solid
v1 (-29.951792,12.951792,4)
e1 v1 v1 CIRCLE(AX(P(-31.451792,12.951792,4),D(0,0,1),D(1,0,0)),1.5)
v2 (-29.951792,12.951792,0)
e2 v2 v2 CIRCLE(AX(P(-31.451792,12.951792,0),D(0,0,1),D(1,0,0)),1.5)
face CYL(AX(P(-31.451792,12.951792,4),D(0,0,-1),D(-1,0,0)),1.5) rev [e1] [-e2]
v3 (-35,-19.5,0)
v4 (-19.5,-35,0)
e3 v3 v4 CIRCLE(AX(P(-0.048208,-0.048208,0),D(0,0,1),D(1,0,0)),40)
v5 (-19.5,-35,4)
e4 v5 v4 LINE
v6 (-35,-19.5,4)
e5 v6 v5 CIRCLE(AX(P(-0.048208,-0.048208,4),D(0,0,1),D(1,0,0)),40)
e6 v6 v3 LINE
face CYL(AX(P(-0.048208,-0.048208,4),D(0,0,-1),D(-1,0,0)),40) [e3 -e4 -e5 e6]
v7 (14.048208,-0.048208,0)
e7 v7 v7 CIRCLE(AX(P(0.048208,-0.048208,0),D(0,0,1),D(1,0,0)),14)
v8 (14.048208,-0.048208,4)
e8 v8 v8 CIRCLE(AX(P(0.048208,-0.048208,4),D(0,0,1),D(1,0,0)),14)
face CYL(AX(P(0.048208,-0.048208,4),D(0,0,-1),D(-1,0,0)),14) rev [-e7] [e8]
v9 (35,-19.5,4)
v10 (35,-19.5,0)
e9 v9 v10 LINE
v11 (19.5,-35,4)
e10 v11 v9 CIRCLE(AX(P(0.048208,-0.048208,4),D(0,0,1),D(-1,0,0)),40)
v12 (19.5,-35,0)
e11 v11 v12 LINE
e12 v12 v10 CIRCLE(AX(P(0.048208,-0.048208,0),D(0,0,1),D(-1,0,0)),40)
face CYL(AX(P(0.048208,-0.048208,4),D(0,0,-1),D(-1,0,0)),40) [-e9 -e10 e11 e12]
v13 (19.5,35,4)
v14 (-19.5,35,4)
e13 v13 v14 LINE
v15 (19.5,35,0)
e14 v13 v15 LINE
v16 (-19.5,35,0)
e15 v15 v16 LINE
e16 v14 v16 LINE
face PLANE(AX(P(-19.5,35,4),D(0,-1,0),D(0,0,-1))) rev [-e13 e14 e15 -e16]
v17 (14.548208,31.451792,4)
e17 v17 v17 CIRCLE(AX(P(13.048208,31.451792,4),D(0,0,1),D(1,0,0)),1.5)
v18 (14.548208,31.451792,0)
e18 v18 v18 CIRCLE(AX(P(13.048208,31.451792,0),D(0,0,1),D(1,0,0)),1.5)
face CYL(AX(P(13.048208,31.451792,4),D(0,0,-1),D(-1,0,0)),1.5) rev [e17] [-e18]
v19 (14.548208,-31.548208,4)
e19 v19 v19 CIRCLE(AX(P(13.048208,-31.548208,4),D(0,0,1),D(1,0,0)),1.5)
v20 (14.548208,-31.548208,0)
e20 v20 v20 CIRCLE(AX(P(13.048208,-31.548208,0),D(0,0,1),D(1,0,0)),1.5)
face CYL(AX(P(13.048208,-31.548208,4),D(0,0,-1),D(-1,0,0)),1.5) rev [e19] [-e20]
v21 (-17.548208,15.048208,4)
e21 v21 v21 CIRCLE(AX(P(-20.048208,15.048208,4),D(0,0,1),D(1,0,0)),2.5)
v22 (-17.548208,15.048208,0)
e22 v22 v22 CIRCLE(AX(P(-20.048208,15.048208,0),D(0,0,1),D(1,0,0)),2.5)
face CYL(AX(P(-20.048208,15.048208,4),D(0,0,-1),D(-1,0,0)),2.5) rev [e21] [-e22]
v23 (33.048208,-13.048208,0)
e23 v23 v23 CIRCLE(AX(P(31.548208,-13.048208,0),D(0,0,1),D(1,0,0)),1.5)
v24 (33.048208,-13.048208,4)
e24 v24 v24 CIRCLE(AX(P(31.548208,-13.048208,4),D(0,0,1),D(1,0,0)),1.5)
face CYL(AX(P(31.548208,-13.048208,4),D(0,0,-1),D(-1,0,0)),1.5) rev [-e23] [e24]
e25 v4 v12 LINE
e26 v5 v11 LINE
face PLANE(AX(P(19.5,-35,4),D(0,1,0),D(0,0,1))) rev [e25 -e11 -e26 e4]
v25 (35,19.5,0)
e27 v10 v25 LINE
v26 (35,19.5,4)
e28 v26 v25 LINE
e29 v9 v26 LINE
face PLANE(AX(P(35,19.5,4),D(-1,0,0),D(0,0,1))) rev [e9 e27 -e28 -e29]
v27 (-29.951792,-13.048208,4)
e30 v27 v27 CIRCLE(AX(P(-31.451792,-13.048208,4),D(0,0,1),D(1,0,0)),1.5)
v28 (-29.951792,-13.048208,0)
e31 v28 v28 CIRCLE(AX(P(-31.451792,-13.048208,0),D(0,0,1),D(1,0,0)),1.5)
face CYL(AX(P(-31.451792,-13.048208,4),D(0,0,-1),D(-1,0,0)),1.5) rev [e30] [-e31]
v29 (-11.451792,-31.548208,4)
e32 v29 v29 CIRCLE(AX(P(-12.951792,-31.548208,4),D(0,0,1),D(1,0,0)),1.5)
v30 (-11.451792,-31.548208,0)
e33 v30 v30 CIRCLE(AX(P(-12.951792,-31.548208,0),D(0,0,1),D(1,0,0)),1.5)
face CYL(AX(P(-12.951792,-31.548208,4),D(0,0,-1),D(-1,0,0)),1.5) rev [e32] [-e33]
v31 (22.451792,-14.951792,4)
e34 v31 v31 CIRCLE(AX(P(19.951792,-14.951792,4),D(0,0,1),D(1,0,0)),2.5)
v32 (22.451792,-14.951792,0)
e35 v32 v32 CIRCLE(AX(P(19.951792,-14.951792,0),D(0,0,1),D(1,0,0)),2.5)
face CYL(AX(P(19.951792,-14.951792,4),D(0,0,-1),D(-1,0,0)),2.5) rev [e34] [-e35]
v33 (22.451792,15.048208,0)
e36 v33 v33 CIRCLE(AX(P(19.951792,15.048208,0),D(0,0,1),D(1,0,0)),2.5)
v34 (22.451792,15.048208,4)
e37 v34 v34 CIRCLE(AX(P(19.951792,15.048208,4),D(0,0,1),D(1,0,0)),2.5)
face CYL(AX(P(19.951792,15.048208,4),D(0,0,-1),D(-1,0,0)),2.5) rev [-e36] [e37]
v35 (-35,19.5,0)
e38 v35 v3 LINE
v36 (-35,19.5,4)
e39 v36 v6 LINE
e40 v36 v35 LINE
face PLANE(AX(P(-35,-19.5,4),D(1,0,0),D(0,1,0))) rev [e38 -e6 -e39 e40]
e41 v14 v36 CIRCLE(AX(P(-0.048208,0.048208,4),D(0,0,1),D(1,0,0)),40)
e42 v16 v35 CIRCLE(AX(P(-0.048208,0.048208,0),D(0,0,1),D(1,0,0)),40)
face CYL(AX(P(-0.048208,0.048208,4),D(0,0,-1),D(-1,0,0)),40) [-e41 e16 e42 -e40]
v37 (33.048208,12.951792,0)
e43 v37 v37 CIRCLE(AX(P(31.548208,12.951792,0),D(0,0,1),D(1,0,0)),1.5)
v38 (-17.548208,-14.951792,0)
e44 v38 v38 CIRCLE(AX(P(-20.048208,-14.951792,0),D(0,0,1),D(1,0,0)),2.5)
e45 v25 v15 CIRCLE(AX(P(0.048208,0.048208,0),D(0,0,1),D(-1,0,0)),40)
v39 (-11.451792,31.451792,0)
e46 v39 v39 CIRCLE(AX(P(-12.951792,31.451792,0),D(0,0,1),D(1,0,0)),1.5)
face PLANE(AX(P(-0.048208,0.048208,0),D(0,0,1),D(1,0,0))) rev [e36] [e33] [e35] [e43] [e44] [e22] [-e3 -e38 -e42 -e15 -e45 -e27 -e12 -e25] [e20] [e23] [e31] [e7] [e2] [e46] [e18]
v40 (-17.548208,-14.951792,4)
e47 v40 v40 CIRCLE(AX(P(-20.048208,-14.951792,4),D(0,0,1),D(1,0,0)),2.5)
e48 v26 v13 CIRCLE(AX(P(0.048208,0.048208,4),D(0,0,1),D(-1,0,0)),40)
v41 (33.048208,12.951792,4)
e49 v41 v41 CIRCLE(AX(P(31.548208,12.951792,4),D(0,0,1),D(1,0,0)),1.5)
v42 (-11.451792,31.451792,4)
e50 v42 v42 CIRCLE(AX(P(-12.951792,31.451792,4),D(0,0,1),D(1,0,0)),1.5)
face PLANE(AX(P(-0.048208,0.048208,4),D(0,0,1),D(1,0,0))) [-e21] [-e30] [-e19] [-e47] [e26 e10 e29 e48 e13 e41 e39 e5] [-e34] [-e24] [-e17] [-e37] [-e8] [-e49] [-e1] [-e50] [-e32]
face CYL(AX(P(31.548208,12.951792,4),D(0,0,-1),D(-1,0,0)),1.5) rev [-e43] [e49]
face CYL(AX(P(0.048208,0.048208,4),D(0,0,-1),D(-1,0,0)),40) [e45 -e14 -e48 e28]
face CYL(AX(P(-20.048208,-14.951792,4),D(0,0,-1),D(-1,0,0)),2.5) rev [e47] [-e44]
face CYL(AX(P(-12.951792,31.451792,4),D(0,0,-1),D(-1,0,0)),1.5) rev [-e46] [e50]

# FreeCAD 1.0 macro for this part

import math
import FreeCAD as App
import Part
import Sketcher
from FreeCAD import Vector
Q = App.Units.Quantity

doc = App.newDocument("Part")
params = doc.addObject("Spreadsheet::Sheet", "Params")
for row, (alias, value) in enumerate([
    ("sketch1_diameter", "3 mm"),
    ("sketch1_diameter2", "5 mm"),
    ("sketch1_diameter3", "28 mm"),
    ("sketch1_radius", "40 mm"),
    ("sketch1_width", "39 mm"),
    ("pad1_length", "4 mm"),
], start=1):
    params.set(f"A{row}", alias)
    params.set(f"B{row}", "=" + value)
    params.setAlias(f"B{row}", alias)

body = doc.addObject("PartDesign::Body", "Body")

sketch1 = doc.addObject("Sketcher::SketchObject", "Sketch")
body.addObject(sketch1)
sketch1.AttachmentSupport = (doc.XY_Plane, [""])
sketch1.MapMode = "FlatFace"
sketch1.addGeometry(Part.LineSegment(Vector(19.5, 35, 0), Vector(-19.5, 35, 0)), False)
sketch1.addGeometry(Part.ArcOfCircle(Part.Circle(Vector(0, 0, 0), Vector(0, 0, 1), 40), math.radians(119), math.radians(151)), False)
sketch1.addGeometry(Part.LineSegment(Vector(-35, 19.5, 0), Vector(-35, -19.5, 0)), False)
sketch1.addGeometry(Part.ArcOfCircle(Part.Circle(Vector(0, 0, 0), Vector(0, 0, 1), 40), math.radians(-151), math.radians(-119)), False)
sketch1.addGeometry(Part.LineSegment(Vector(-19.5, -35, 0), Vector(19.5, -35, 0)), False)
sketch1.addGeometry(Part.ArcOfCircle(Part.Circle(Vector(0, 0, 0), Vector(0, 0, 1), 40), math.radians(-61), math.radians(-29)), False)
sketch1.addGeometry(Part.LineSegment(Vector(35, -19.5, 0), Vector(35, 19.5, 0)), False)
sketch1.addGeometry(Part.ArcOfCircle(Part.Circle(Vector(0, 0, 0), Vector(0, 0, 1), 40), math.radians(29), math.radians(61)), False)
sketch1.addGeometry(Part.Circle(Vector(13, -31.5, 0), Vector(0, 0, 1), 1.5), False)
sketch1.addGeometry(Part.Circle(Vector(31.5, -13, 0), Vector(0, 0, 1), 1.5), False)
sketch1.addGeometry(Part.Circle(Vector(20, -15, 0), Vector(0, 0, 1), 2.5), False)
sketch1.addGeometry(Part.Circle(Vector(-13, -31.5, 0), Vector(0, 0, 1), 1.5), False)
sketch1.addGeometry(Part.Circle(Vector(-20, -15, 0), Vector(0, 0, 1), 2.5), False)
sketch1.addGeometry(Part.Circle(Vector(-31.5, -13, 0), Vector(0, 0, 1), 1.5), False)
sketch1.addGeometry(Part.Circle(Vector(31.5, 13, 0), Vector(0, 0, 1), 1.5), False)
sketch1.addGeometry(Part.Circle(Vector(20, 15, 0), Vector(0, 0, 1), 2.5), False)
sketch1.addGeometry(Part.Circle(Vector(13, 31.5, 0), Vector(0, 0, 1), 1.5), False)
sketch1.addGeometry(Part.Circle(Vector(0, 0, 0), Vector(0, 0, 1), 14), False)
sketch1.addGeometry(Part.Circle(Vector(-20, 15, 0), Vector(0, 0, 1), 2.5), False)
sketch1.addGeometry(Part.Circle(Vector(-31.5, 13, 0), Vector(0, 0, 1), 1.5), False)
sketch1.addGeometry(Part.Circle(Vector(-13, 31.5, 0), Vector(0, 0, 1), 1.5), False)
sketch1.addConstraint(Sketcher.Constraint("Coincident", 0, 2, 1, 1))
sketch1.addConstraint(Sketcher.Constraint("Coincident", 1, 2, 2, 1))
sketch1.addConstraint(Sketcher.Constraint("Coincident", 2, 2, 3, 1))
sketch1.addConstraint(Sketcher.Constraint("Coincident", 3, 2, 4, 1))
sketch1.addConstraint(Sketcher.Constraint("Coincident", 4, 2, 5, 1))
sketch1.addConstraint(Sketcher.Constraint("Coincident", 5, 2, 6, 1))
sketch1.addConstraint(Sketcher.Constraint("Coincident", 6, 2, 7, 1))
sketch1.addConstraint(Sketcher.Constraint("Coincident", 7, 2, 0, 1))
sketch1.addConstraint(Sketcher.Constraint("Horizontal", 0))
sketch1.addConstraint(Sketcher.Constraint("Vertical", 2))
sketch1.addConstraint(Sketcher.Constraint("Horizontal", 4))
sketch1.addConstraint(Sketcher.Constraint("Vertical", 6))
sketch1.addConstraint(Sketcher.Constraint("Coincident", 17, 3, 5, 3))
sketch1.addConstraint(Sketcher.Constraint("Equal", 1, 3))
sketch1.addConstraint(Sketcher.Constraint("Equal", 3, 5))
sketch1.addConstraint(Sketcher.Constraint("Equal", 5, 7))
sketch1.addConstraint(Sketcher.Constraint("Equal", 8, 9))
sketch1.addConstraint(Sketcher.Constraint("Equal", 9, 11))
sketch1.addConstraint(Sketcher.Constraint("Equal", 10, 12))
sketch1.addConstraint(Sketcher.Constraint("Equal", 11, 13))
sketch1.addConstraint(Sketcher.Constraint("Equal", 13, 14))
sketch1.addConstraint(Sketcher.Constraint("Equal", 12, 15))
sketch1.addConstraint(Sketcher.Constraint("Equal", 14, 16))
sketch1.addConstraint(Sketcher.Constraint("Equal", 15, 18))
sketch1.addConstraint(Sketcher.Constraint("Equal", 16, 19))
sketch1.addConstraint(Sketcher.Constraint("Equal", 19, 20))
sketch1.addConstraint(Sketcher.Constraint("Symmetric", 1, 3, 5, 3, -1, 1))
sketch1.addConstraint(Sketcher.Constraint("Symmetric", 3, 3, 7, 3, -1, 1))
sketch1.addConstraint(Sketcher.Constraint("Symmetric", 3, 3, 5, 3, -2))
sketch1.addConstraint(Sketcher.Constraint("Horizontal", 8, 3, 11, 3))
sketch1.addConstraint(Sketcher.Constraint("Horizontal", 10, 3, 12, 3))
sketch1.addConstraint(Sketcher.Constraint("Horizontal", 9, 3, 13, 3))
sketch1.addConstraint(Sketcher.Constraint("Horizontal", 15, 3, 18, 3))
sketch1.addConstraint(Sketcher.Constraint("Horizontal", 14, 3, 19, 3))
sketch1.addConstraint(Sketcher.Constraint("Horizontal", 16, 3, 20, 3))
sketch1.addConstraint(Sketcher.Constraint("Horizontal", 2, 2, 5, 2))
sketch1.addConstraint(Sketcher.Constraint("Vertical", 9, 3, 14, 3))
sketch1.addConstraint(Sketcher.Constraint("Vertical", 10, 3, 15, 3))
sketch1.addConstraint(Sketcher.Constraint("Vertical", 8, 3, 16, 3))
sketch1.addConstraint(Sketcher.Constraint("Vertical", 12, 3, 18, 3))
sketch1.addConstraint(Sketcher.Constraint("Vertical", 13, 3, 19, 3))
sketch1.addConstraint(Sketcher.Constraint("Vertical", 11, 3, 20, 3))
sketch1.addConstraint(Sketcher.Constraint("Vertical", 0, 2, 3, 2))
sketch1.addConstraint(Sketcher.Constraint("Equal", 4, 2))
sketch1.addConstraint(Sketcher.Constraint("Diameter", 8, Q("3 mm")))
sketch1.addConstraint(Sketcher.Constraint("Diameter", 10, Q("5 mm")))
sketch1.addConstraint(Sketcher.Constraint("Diameter", 17, Q("28 mm")))
sketch1.addConstraint(Sketcher.Constraint("Radius", 1, Q("40 mm")))
sketch1.addConstraint(Sketcher.Constraint("DistanceX", 0, 2, 0, 1, Q("39 mm")))
sketch1.addConstraint(Sketcher.Constraint("DistanceY", -1, 1, 0, 2, Q("35 mm")))
sketch1.addConstraint(Sketcher.Constraint("DistanceX", 1, 2, -1, 1, Q("35 mm")))
sketch1.addConstraint(Sketcher.Constraint("DistanceX", 5, 3, 8, 3, Q("13 mm")))
sketch1.addConstraint(Sketcher.Constraint("DistanceY", 9, 3, 5, 3, Q("13 mm")))
sketch1.addConstraint(Sketcher.Constraint("DistanceY", 10, 3, 7, 3, Q("15 mm")))
sketch1.addConstraint(Sketcher.Constraint("DistanceX", 3, 3, 10, 3, Q("20 mm")))
sketch1.addConstraint(Sketcher.Constraint("DistanceX", 11, 3, 8, 3, Q("26 mm")))
sketch1.addConstraint(Sketcher.Constraint("DistanceX", 12, 3, 3, 3, Q("20 mm")))
sketch1.addConstraint(Sketcher.Constraint("DistanceY", 9, 3, 14, 3, Q("26 mm")))
sketch1.addConstraint(Sketcher.Constraint("DistanceY", 7, 3, 15, 3, Q("15 mm")))
sketch1.addConstraint(Sketcher.Constraint("DistanceY", 8, 3, 5, 3, Q("31.5 mm")))
sketch1.addConstraint(Sketcher.Constraint("DistanceX", 8, 3, 9, 3, Q("18.5 mm")))
sketch1.addConstraint(Sketcher.Constraint("DistanceX", 13, 3, 11, 3, Q("18.5 mm")))
sketch1.addConstraint(Sketcher.Constraint("DistanceY", 14, 3, 16, 3, Q("18.5 mm")))
sketch1.setExpression("Constraints[44]", "Params.sketch1_diameter")
sketch1.setExpression("Constraints[45]", "Params.sketch1_diameter2")
sketch1.setExpression("Constraints[46]", "Params.sketch1_diameter3")
sketch1.setExpression("Constraints[47]", "Params.sketch1_radius")
sketch1.setExpression("Constraints[48]", "Params.sketch1_width")
pad1 = doc.addObject("PartDesign::Pad", "Pad")
body.addObject(pad1)
pad1.Profile = sketch1
pad1.setExpression("Length", "Params.pad1_length")

doc.recompute()
